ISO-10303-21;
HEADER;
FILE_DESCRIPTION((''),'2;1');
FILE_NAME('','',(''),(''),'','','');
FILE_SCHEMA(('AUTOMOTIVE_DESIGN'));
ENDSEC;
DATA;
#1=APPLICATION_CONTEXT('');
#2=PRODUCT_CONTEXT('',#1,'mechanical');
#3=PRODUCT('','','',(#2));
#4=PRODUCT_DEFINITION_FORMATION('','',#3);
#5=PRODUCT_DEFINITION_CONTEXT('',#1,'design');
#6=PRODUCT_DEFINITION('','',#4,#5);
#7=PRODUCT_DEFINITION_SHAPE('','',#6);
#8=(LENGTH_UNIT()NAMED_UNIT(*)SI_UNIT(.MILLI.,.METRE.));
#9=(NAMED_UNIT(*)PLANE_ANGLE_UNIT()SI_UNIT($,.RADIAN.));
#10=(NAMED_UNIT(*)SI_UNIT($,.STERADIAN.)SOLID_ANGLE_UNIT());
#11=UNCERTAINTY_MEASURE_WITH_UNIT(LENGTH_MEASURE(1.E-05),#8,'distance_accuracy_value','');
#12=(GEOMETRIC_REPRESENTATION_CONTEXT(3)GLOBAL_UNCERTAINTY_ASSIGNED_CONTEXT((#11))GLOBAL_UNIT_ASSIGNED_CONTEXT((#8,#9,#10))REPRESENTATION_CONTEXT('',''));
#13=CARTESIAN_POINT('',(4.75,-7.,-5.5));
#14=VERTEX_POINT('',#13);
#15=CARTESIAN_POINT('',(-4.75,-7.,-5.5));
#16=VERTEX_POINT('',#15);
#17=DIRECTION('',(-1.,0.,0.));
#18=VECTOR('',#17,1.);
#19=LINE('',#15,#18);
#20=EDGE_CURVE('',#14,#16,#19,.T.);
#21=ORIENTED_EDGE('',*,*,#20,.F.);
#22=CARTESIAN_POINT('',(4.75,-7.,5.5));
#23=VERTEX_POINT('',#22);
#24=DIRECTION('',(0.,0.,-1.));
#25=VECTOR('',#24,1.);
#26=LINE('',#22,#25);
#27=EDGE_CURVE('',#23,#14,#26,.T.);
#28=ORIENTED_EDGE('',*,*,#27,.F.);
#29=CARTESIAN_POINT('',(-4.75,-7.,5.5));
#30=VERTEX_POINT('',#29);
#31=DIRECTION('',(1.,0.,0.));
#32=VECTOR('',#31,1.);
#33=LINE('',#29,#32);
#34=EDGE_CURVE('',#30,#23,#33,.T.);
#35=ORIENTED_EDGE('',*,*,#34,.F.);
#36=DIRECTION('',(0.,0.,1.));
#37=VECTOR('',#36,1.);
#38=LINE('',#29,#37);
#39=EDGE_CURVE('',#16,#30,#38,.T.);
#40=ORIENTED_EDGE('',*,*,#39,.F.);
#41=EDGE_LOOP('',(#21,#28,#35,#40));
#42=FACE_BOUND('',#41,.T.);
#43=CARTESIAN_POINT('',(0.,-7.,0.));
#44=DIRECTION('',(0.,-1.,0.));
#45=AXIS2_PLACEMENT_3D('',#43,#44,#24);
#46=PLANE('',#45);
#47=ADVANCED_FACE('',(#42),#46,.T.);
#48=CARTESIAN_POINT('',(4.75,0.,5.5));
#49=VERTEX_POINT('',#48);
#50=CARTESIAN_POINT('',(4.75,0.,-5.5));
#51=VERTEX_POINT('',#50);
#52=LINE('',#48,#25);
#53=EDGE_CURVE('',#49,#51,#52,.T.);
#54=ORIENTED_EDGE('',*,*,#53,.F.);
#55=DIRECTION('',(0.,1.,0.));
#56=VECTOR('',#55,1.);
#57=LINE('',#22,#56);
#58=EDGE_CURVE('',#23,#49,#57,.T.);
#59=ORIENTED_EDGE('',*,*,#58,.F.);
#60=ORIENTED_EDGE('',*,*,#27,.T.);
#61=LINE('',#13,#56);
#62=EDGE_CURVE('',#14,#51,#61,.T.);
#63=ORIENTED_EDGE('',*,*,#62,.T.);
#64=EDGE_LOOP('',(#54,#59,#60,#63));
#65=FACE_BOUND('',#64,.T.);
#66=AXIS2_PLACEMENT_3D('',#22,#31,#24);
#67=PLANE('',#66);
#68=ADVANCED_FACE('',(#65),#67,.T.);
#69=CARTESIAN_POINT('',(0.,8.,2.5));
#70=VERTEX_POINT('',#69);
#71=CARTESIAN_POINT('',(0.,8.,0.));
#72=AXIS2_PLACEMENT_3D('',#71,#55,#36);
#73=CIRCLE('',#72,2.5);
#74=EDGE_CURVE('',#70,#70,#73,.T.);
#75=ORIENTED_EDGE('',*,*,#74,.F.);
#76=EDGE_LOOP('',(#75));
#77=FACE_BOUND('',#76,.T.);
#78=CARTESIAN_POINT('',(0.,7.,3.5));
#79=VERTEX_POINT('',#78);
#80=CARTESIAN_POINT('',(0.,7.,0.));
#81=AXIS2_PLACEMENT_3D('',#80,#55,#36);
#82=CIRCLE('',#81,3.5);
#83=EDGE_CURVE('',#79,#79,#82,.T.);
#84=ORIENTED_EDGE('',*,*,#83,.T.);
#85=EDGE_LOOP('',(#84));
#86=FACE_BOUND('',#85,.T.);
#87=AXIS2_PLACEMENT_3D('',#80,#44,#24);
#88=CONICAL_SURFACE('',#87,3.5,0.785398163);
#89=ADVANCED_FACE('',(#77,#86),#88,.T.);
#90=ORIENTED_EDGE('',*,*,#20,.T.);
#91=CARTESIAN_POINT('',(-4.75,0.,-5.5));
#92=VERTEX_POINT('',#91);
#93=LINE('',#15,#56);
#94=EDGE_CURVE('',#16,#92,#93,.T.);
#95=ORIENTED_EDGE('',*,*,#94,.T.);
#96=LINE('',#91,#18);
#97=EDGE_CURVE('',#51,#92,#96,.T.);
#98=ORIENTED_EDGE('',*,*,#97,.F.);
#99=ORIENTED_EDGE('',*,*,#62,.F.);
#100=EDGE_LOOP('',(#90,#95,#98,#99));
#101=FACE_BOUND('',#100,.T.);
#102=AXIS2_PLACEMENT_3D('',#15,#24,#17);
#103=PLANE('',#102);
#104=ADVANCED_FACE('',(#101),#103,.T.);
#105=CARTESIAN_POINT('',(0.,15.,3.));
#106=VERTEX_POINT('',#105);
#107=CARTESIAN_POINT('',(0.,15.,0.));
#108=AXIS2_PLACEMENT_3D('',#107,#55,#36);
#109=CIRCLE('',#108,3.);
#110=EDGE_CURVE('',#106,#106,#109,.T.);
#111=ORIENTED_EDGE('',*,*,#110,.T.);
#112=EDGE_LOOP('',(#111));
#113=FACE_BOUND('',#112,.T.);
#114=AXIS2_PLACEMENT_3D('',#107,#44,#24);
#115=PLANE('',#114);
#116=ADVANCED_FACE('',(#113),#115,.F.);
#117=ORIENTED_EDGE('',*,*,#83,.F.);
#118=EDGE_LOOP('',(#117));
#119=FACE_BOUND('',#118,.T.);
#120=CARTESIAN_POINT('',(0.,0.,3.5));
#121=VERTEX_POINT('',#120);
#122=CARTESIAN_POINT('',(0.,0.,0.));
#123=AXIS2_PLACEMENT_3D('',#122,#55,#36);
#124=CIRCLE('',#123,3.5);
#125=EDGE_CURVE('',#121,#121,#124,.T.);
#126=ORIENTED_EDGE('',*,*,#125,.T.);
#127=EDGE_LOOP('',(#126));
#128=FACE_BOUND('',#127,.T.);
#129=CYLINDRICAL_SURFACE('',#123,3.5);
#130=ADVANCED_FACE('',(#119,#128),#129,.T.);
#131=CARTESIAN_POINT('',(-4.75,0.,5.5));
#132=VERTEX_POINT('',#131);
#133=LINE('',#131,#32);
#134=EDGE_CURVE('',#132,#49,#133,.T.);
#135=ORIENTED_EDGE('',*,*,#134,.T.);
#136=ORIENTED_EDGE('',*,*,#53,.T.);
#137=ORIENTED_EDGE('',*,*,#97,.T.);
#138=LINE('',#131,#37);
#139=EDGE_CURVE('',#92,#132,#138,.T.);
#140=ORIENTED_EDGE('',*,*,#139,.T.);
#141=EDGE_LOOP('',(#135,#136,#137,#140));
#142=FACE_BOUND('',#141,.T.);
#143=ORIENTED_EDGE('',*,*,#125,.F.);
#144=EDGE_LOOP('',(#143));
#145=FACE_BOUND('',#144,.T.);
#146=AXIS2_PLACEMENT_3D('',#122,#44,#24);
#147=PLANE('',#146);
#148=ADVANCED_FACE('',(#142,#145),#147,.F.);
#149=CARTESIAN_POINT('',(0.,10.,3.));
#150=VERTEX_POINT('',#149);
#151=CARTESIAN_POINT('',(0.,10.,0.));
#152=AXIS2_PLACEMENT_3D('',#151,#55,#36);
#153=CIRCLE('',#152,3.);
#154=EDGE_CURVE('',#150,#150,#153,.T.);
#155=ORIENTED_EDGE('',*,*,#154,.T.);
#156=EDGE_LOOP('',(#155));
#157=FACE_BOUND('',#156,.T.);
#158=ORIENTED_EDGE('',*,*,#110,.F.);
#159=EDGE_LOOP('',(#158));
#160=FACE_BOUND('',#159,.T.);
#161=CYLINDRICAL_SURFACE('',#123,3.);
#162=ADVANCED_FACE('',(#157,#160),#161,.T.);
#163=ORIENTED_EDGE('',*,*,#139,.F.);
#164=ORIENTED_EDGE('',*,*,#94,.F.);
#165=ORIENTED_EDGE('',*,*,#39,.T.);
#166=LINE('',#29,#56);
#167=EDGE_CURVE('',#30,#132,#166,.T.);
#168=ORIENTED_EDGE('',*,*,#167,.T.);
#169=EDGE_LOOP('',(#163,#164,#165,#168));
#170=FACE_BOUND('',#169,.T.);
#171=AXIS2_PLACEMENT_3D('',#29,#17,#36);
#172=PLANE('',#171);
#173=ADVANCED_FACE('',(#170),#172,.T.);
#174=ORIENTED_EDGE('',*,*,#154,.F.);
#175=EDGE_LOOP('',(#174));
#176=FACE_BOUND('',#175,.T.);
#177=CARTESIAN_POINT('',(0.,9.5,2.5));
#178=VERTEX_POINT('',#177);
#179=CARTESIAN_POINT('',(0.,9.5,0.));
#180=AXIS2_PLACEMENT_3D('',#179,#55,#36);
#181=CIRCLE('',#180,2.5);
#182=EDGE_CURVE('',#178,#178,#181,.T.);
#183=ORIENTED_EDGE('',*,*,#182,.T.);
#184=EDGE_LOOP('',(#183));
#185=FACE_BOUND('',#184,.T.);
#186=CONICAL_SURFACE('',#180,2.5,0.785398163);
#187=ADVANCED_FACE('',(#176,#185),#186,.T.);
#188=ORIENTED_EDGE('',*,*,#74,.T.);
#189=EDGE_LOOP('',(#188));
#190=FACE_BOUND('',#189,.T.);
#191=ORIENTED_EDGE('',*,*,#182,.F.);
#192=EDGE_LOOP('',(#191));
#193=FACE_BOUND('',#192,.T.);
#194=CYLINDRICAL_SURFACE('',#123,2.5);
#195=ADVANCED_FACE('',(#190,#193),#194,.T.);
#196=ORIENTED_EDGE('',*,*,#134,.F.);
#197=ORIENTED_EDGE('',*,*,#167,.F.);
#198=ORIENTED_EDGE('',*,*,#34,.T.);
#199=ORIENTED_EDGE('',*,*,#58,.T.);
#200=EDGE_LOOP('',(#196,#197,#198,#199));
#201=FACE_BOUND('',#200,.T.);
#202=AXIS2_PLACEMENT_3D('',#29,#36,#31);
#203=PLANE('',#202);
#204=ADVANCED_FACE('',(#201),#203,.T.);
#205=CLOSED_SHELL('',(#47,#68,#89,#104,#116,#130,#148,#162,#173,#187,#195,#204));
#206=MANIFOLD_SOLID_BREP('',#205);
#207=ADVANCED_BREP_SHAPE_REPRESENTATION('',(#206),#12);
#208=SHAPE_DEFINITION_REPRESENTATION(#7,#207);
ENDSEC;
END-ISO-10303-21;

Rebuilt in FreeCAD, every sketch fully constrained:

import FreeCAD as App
import Part
import Sketcher
Q = App.Units.Quantity

doc = App.newDocument("Part")
body = doc.addObject("PartDesign::Body", "Body")

sketch1 = body.newObject("Sketcher::SketchObject", "Sketch")
sketch1.AttachmentSupport = (doc.getObject("XZ_Plane"), [""])
sketch1.MapMode = "FlatFace"
sketch1.addGeometry(Part.LineSegment(App.Vector(-4.75, -5.5, 0), App.Vector(-4.75, 5.5, 0)), False)
sketch1.addGeometry(Part.LineSegment(App.Vector(-4.75, 5.5, 0), App.Vector(4.75, 5.5, 0)), False)
sketch1.addGeometry(Part.LineSegment(App.Vector(4.75, 5.5, 0), App.Vector(4.75, -5.5, 0)), False)
sketch1.addGeometry(Part.LineSegment(App.Vector(4.75, -5.5, 0), App.Vector(-4.75, -5.5, 0)), False)
sketch1.addConstraint(Sketcher.Constraint("Coincident", 0, 2, 1, 1))
sketch1.addConstraint(Sketcher.Constraint("Coincident", 1, 2, 2, 1))
sketch1.addConstraint(Sketcher.Constraint("Coincident", 2, 2, 3, 1))
sketch1.addConstraint(Sketcher.Constraint("Coincident", 3, 2, 0, 1))
sketch1.addConstraint(Sketcher.Constraint("Vertical", 0))
sketch1.addConstraint(Sketcher.Constraint("Horizontal", 1))
sketch1.addConstraint(Sketcher.Constraint("Vertical", 2))
sketch1.addConstraint(Sketcher.Constraint("Horizontal", 3))
sketch1.addConstraint(Sketcher.Constraint("Symmetric", 0, 2, 2, 2, -1, 1))
sketch1.addConstraint(Sketcher.Constraint("DistanceY", 0, 1, 0, 2, 11.0))
sketch1.addConstraint(Sketcher.Constraint("DistanceX", 1, 1, 1, 2, 9.5))
pad1 = body.newObject("PartDesign::Pad", "Pad")
pad1.Profile = sketch1
pad1.Length = 7

sketch2 = body.newObject("Sketcher::SketchObject", "Sketch001")
sketch2.AttachmentSupport = (doc.getObject("XY_Plane"), [""])
sketch2.MapMode = "FlatFace"
sketch2.addGeometry(Part.LineSegment(App.Vector(0, 15, 0), App.Vector(0, 0, 0)), False)
sketch2.addGeometry(Part.LineSegment(App.Vector(0, 0, 0), App.Vector(3.5, 0, 0)), False)
sketch2.addGeometry(Part.LineSegment(App.Vector(3.5, 0, 0), App.Vector(3.5, 7, 0)), False)
sketch2.addGeometry(Part.LineSegment(App.Vector(3.5, 7, 0), App.Vector(2.5, 8, 0)), False)
sketch2.addGeometry(Part.LineSegment(App.Vector(2.5, 8, 0), App.Vector(2.5, 9.5, 0)), False)
sketch2.addGeometry(Part.LineSegment(App.Vector(2.5, 9.5, 0), App.Vector(3, 10, 0)), False)
sketch2.addGeometry(Part.LineSegment(App.Vector(3, 10, 0), App.Vector(3, 15, 0)), False)
sketch2.addGeometry(Part.LineSegment(App.Vector(3, 15, 0), App.Vector(0, 15, 0)), False)
sketch2.addConstraint(Sketcher.Constraint("Coincident", 0, 2, 1, 1))
sketch2.addConstraint(Sketcher.Constraint("Coincident", 1, 2, 2, 1))
sketch2.addConstraint(Sketcher.Constraint("Coincident", 2, 2, 3, 1))
sketch2.addConstraint(Sketcher.Constraint("Coincident", 3, 2, 4, 1))
sketch2.addConstraint(Sketcher.Constraint("Coincident", 4, 2, 5, 1))
sketch2.addConstraint(Sketcher.Constraint("Coincident", 5, 2, 6, 1))
sketch2.addConstraint(Sketcher.Constraint("Coincident", 6, 2, 7, 1))
sketch2.addConstraint(Sketcher.Constraint("Coincident", 7, 2, 0, 1))
sketch2.addConstraint(Sketcher.Constraint("Vertical", 0))
sketch2.addConstraint(Sketcher.Constraint("Horizontal", 1))
sketch2.addConstraint(Sketcher.Constraint("Vertical", 2))
sketch2.addConstraint(Sketcher.Constraint("Vertical", 4))
sketch2.addConstraint(Sketcher.Constraint("Vertical", 6))
sketch2.addConstraint(Sketcher.Constraint("Horizontal", 7))
sketch2.addConstraint(Sketcher.Constraint("Coincident", 0, 2, -1, 1))
sketch2.addConstraint(Sketcher.Constraint("Perpendicular", 3, 5))
sketch2.addConstraint(Sketcher.Constraint("DistanceX", 7, 2, 7, 1, 3.0))
sketch2.addConstraint(Sketcher.Constraint("DistanceY", 0, 2, 0, 1, 15.0))
sketch2.addConstraint(Sketcher.Constraint("DistanceY", 2, 1, 2, 2, 7.0))
sketch2.addConstraint(Sketcher.Constraint("DistanceY", 6, 1, 6, 2, 5.0))
sketch2.addConstraint(Sketcher.Constraint("Angle", 3, Q("135 deg")))
sketch2.addConstraint(Sketcher.Constraint("DistanceX", 1, 1, 1, 2, 3.5))
sketch2.addConstraint(Sketcher.Constraint("DistanceY", 4, 1, 4, 2, 1.5))
revolution = body.newObject("PartDesign::Revolution", "Revolution")
revolution.Profile = sketch2
revolution.ReferenceAxis = (sketch2, ["V_Axis"])
revolution.Angle = 360

doc.recompute()
